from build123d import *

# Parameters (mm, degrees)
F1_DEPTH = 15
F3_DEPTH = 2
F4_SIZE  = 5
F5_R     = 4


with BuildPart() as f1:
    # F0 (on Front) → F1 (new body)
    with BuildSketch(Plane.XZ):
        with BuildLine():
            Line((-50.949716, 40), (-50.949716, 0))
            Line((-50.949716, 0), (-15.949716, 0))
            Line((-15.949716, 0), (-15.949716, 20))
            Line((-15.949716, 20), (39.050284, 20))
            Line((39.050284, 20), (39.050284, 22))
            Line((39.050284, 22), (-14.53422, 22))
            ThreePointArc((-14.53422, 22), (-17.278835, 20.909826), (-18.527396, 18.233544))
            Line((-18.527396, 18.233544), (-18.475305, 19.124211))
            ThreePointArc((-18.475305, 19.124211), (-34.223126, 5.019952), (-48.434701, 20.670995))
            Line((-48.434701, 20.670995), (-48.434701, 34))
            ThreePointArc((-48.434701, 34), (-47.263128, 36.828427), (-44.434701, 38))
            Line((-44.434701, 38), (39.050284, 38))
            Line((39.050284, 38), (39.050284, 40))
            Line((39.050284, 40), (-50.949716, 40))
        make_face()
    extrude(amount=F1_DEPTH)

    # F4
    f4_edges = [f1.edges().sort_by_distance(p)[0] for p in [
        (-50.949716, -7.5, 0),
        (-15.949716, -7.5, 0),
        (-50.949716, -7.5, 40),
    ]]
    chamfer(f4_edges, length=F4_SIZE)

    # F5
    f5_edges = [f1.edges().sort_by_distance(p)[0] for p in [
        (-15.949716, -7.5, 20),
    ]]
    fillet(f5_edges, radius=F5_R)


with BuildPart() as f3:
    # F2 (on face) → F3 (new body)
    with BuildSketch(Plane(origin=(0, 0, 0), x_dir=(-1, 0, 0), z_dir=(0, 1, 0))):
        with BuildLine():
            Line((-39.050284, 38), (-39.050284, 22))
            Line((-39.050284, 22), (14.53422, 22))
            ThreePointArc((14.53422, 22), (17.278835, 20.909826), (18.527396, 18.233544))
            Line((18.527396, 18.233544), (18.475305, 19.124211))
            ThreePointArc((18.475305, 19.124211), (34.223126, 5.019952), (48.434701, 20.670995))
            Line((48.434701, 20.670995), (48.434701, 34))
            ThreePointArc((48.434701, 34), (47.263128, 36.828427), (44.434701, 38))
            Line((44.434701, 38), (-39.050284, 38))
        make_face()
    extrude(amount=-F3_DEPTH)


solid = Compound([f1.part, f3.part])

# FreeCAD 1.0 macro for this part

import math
import FreeCAD as App
import Part
import Sketcher


def edges_at(feature, points):
    """Names of the edges that pass closest to the given points."""
    edges = feature.Shape.Edges
    near = lambda p: min(range(len(edges)), key=lambda i: edges[i].distToShape(Part.Vertex(*p))[0])
    return sorted({f"Edge{near(p) + 1}" for p in points})

doc = App.newDocument("Part")
body = doc.addObject("PartDesign::Body", "Body")

# Sketch on XZ plane
sketch1 = doc.addObject("Sketcher::SketchObject", "Sketch")
body.addObject(sketch1)
sketch1.AttachmentSupport = (doc.XZ_Plane, [""])
sketch1.MapMode = "FlatFace"
sketch1.addGeometry([
    Part.LineSegment(App.Vector(-50.9, 40, 0), App.Vector(-50.9, 0, 0)),  # 0
    Part.LineSegment(App.Vector(-50.9, 0, 0), App.Vector(-15.9, 0, 0)),  # 1
    Part.LineSegment(App.Vector(-15.9, 0, 0), App.Vector(-15.9, 20, 0)),  # 2
    Part.LineSegment(App.Vector(-15.9, 20, 0), App.Vector(39.1, 20, 0)),  # 3
    Part.LineSegment(App.Vector(39.1, 20, 0), App.Vector(39.1, 22, 0)),  # 4
    Part.LineSegment(App.Vector(39.1, 22, 0), App.Vector(-14.5, 22, 0)),  # 5
    Part.ArcOfCircle(Part.Circle(App.Vector(-14.5, 18, 0), App.Vector(0, 0, 1), 4), math.radians(90), math.radians(177)),  # 6
    Part.LineSegment(App.Vector(-18.5, 18.2, 0), App.Vector(-18.5, 19.1, 0)),  # 7
    Part.ArcOfCircle(Part.Circle(App.Vector(-33.4, 20, 0), App.Vector(0, 0, 1), 15), math.radians(177), math.radians(357)),  # 8
    Part.LineSegment(App.Vector(-48.4, 20.7, 0), App.Vector(-48.4, 34, 0)),  # 9
    Part.ArcOfCircle(Part.Circle(App.Vector(-44.4, 34, 0), App.Vector(0, 0, 1), 4), math.radians(90), math.radians(180)),  # 10
    Part.LineSegment(App.Vector(-44.4, 38, 0), App.Vector(39.1, 38, 0)),  # 11
    Part.LineSegment(App.Vector(39.1, 38, 0), App.Vector(39.1, 40, 0)),  # 12
    Part.LineSegment(App.Vector(39.1, 40, 0), App.Vector(-50.9, 40, 0)),  # 13
], False)
sketch1.addConstraint([
    Sketcher.Constraint("Coincident", 0, 2, 1, 1),
    Sketcher.Constraint("Coincident", 1, 2, 2, 1),
    Sketcher.Constraint("Coincident", 2, 2, 3, 1),
    Sketcher.Constraint("Coincident", 3, 2, 4, 1),
    Sketcher.Constraint("Coincident", 4, 2, 5, 1),
    Sketcher.Constraint("Tangent", 5, 2, 6, 1),
    Sketcher.Constraint("Tangent", 6, 2, 7, 1),
    Sketcher.Constraint("Tangent", 7, 2, 8, 2),
    Sketcher.Constraint("Coincident", 8, 1, 9, 1),
    Sketcher.Constraint("Tangent", 9, 2, 10, 2),
    Sketcher.Constraint("Tangent", 10, 1, 11, 1),
    Sketcher.Constraint("Coincident", 11, 2, 12, 1),
    Sketcher.Constraint("Coincident", 12, 2, 13, 1),
    Sketcher.Constraint("Coincident", 13, 2, 0, 1),
    Sketcher.Constraint("Vertical", 0),
    Sketcher.Constraint("Horizontal", 1),
    Sketcher.Constraint("Vertical", 2),
    Sketcher.Constraint("Horizontal", 3),
    Sketcher.Constraint("Vertical", 4),
    Sketcher.Constraint("Horizontal", 5),
    Sketcher.Constraint("Vertical", 9),
    Sketcher.Constraint("Horizontal", 11),
    Sketcher.Constraint("Vertical", 12),
    Sketcher.Constraint("Horizontal", 13),
    Sketcher.Constraint("Equal", 6, 10),
    Sketcher.Constraint("PointOnObject", 0, 2, -1),
    Sketcher.Constraint("Horizontal", 8, 3, 2, 2),
    Sketcher.Constraint("Vertical", 4, 2, 11, 2),
    Sketcher.Constraint("Equal", 4, 12),
    Sketcher.Constraint("Radius", 6, 4.0),
    Sketcher.Constraint("Radius", 8, 15.0),
    Sketcher.Constraint("DistanceX", 1, 1, 1, 2, 35.0),
    Sketcher.Constraint("DistanceX", 3, 1, 3, 2, 55.0),
    Sketcher.Constraint("DistanceY", 0, 2, 0, 1, 40.0),
    Sketcher.Constraint("DistanceY", 2, 1, 2, 2, 20.0),
    Sketcher.Constraint("DistanceY", 4, 1, 4, 2, 2.0),
    Sketcher.Constraint("DistanceX", 0, 2, 8, 3, 17.5),
    Sketcher.Constraint("DistanceX", 10, 3, -1, 1, 44.434701),
    Sketcher.Constraint("Distance", 7, 0.892189),
    Sketcher.Constraint("DistanceX", 11, 1, 11, 2, 83.484985),
])
pad1 = doc.addObject("PartDesign::Pad", "Pad")
body.addObject(pad1)
pad1.Profile = sketch1
pad1.Length = 15
doc.recompute()

chamfer = doc.addObject("PartDesign::Chamfer", "Chamfer")
body.addObject(chamfer)
chamfer.Base = (pad1, edges_at(pad1, [(-50.95, -7.5, 0), (-15.95, -7.5, 0), (-50.95, -7.5, 40)]))
chamfer.Size = 5
doc.recompute()

fillet = doc.addObject("PartDesign::Fillet", "Fillet")
body.addObject(fillet)
fillet.Base = (chamfer, edges_at(chamfer, [(-15.95, -7.5, 20)]))
fillet.Radius = 4
body2 = doc.addObject("PartDesign::Body", "Body001")

# Sketch on XZ plane
sketch2 = doc.addObject("Sketcher::SketchObject", "Sketch001")
body2.addObject(sketch2)
sketch2.AttachmentSupport = (doc.getObject("XZ_Plane001"), [""])
sketch2.MapMode = "FlatFace"
sketch2.addGeometry([
    Part.LineSegment(App.Vector(39.1, 38, 0), App.Vector(39.1, 22, 0)),  # 0
    Part.LineSegment(App.Vector(39.1, 22, 0), App.Vector(-14.5, 22, 0)),  # 1
    Part.ArcOfCircle(Part.Circle(App.Vector(-14.5, 18, 0), App.Vector(0, 0, 1), 4), math.radians(90), math.radians(177)),  # 2
    Part.LineSegment(App.Vector(-18.5, 18.2, 0), App.Vector(-18.5, 19.1, 0)),  # 3
    Part.ArcOfCircle(Part.Circle(App.Vector(-33.4, 20, 0), App.Vector(0, 0, 1), 15), math.radians(177), math.radians(357)),  # 4
    Part.LineSegment(App.Vector(-48.4, 20.7, 0), App.Vector(-48.4, 34, 0)),  # 5
    Part.ArcOfCircle(Part.Circle(App.Vector(-44.4, 34, 0), App.Vector(0, 0, 1), 4), math.radians(90), math.radians(180)),  # 6
    Part.LineSegment(App.Vector(-44.4, 38, 0), App.Vector(39.1, 38, 0)),  # 7
], False)
sketch2.addConstraint([
    Sketcher.Constraint("Coincident", 0, 2, 1, 1),
    Sketcher.Constraint("Tangent", 1, 2, 2, 1),
    Sketcher.Constraint("Tangent", 2, 2, 3, 1),
    Sketcher.Constraint("Tangent", 3, 2, 4, 2),
    Sketcher.Constraint("Coincident", 4, 1, 5, 1),
    Sketcher.Constraint("Tangent", 5, 2, 6, 2),
    Sketcher.Constraint("Tangent", 6, 1, 7, 1),
    Sketcher.Constraint("Coincident", 7, 2, 0, 1),
    Sketcher.Constraint("Vertical", 0),
    Sketcher.Constraint("Horizontal", 1),
    Sketcher.Constraint("Vertical", 5),
    Sketcher.Constraint("Horizontal", 7),
    Sketcher.Constraint("Equal", 2, 6),
    Sketcher.Constraint("Radius", 2, 4.0),
    Sketcher.Constraint("Radius", 4, 15.0),
    Sketcher.Constraint("DistanceY", 0, 2, 0, 1, 16.0),
    Sketcher.Constraint("DistanceY", -1, 1, 2, 3, 18.0),
    Sketcher.Constraint("DistanceY", -1, 1, 4, 3, 20.0),
    Sketcher.Constraint("DistanceX", 4, 3, 0, 2, 72.5),
    Sketcher.Constraint("DistanceX", 6, 3, -1, 1, 44.434701),
    Sketcher.Constraint("Distance", 3, 0.892189),
    Sketcher.Constraint("DistanceX", 7, 1, 7, 2, 83.484985),
])
pad2 = doc.addObject("PartDesign::Pad", "Pad001")
body2.addObject(pad2)
pad2.Profile = sketch2
pad2.Length = 2

doc.recompute()
